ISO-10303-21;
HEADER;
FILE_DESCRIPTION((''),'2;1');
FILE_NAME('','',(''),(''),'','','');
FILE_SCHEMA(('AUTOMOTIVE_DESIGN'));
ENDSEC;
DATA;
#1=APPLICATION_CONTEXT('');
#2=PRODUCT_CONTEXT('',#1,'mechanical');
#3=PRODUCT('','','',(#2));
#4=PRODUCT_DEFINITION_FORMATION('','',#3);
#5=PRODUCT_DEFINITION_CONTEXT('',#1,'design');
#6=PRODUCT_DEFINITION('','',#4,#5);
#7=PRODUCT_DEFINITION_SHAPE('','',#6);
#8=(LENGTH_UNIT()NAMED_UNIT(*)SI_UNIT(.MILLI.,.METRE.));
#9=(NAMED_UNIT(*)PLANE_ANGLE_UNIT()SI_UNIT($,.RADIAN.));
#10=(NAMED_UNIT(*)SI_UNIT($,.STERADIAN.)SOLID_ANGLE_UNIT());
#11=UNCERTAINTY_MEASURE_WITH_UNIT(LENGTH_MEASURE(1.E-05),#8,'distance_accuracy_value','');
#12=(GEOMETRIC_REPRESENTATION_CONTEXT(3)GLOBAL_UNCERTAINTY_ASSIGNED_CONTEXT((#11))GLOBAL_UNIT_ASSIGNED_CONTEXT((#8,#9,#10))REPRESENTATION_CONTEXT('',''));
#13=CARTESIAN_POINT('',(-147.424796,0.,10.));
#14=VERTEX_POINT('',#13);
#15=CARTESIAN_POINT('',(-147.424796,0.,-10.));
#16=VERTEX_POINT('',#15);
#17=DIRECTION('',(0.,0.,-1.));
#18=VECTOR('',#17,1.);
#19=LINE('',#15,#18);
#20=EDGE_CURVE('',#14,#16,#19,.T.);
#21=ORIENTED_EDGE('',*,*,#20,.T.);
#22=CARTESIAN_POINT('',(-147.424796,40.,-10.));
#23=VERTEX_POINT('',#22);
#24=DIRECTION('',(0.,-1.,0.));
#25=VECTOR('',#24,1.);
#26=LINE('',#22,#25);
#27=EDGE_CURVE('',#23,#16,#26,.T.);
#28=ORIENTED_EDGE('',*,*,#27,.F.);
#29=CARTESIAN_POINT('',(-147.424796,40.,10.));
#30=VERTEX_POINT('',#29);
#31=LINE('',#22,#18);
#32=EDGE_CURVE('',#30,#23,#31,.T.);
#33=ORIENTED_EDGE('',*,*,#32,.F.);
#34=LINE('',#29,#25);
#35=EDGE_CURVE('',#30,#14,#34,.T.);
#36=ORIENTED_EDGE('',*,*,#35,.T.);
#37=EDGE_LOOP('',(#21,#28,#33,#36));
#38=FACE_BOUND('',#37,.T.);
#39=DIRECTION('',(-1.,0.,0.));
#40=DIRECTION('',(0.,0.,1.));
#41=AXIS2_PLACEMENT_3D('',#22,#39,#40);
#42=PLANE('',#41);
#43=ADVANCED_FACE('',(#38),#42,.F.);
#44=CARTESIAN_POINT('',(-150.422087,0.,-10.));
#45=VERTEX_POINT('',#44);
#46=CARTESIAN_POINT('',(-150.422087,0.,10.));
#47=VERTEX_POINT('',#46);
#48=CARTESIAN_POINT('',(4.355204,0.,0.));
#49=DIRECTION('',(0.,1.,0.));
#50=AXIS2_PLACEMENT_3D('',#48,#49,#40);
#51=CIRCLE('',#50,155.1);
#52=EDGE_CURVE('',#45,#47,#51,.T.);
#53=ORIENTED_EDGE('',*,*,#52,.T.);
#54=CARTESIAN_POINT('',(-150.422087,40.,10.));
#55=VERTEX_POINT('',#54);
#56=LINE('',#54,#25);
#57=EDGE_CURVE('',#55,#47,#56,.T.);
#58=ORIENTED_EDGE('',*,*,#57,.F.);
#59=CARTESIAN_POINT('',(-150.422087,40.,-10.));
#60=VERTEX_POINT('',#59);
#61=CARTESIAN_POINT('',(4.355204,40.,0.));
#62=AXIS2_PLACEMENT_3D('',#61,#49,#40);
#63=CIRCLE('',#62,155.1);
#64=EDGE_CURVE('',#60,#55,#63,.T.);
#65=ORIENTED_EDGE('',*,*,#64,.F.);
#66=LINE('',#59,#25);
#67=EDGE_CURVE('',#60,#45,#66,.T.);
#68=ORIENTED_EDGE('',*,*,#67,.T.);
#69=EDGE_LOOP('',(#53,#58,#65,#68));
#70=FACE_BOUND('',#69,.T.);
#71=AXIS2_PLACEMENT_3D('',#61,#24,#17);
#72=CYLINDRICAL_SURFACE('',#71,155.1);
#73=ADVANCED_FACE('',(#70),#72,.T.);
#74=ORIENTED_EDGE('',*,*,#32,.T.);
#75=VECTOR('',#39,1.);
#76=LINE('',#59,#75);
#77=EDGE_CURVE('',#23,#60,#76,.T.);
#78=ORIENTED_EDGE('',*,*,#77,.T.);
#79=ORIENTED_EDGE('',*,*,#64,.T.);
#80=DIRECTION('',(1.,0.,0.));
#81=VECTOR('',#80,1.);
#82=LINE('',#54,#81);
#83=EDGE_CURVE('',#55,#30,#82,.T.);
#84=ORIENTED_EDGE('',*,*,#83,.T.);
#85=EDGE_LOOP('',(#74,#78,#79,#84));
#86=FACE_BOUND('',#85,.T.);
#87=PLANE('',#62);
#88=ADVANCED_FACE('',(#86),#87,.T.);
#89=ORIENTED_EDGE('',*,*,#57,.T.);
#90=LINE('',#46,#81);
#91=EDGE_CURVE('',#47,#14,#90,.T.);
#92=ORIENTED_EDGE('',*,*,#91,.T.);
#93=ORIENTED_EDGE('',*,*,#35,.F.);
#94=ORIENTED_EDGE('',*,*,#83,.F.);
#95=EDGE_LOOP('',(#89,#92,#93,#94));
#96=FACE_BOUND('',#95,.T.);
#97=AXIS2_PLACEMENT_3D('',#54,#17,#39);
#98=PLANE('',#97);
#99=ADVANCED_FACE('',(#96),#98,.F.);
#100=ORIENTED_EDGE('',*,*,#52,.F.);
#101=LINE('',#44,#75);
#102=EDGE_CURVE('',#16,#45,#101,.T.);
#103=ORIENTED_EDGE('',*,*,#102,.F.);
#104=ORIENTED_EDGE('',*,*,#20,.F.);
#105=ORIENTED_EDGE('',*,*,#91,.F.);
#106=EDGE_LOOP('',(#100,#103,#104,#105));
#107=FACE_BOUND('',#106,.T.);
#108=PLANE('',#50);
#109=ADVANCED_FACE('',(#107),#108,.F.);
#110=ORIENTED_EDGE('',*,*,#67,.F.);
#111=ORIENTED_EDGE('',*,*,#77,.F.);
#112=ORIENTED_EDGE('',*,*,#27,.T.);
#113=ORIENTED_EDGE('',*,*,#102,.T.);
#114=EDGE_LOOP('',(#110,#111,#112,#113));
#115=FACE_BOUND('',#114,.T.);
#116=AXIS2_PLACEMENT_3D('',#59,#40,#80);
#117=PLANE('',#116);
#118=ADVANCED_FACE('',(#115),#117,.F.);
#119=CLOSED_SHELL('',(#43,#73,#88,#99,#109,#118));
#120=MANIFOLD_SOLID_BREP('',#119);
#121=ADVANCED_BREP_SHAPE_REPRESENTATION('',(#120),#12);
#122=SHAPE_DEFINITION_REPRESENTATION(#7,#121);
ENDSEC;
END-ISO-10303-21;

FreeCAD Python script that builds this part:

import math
import FreeCAD as App
import Part
import Sketcher

doc = App.newDocument("Part")
body = doc.addObject("PartDesign::Body", "Body")

# Sketch on XZ plane
sketch1 = doc.addObject("Sketcher::SketchObject", "Sketch")
body.addObject(sketch1)
sketch1.AttachmentSupport = (doc.XZ_Plane, [""])
sketch1.MapMode = "FlatFace"
sketch1.addGeometry([
    Part.LineSegment(App.Vector(-147.4, -10, 0), App.Vector(-150.4, -10, 0)),
    Part.ArcOfCircle(Part.Circle(App.Vector(4.4, 0, 0), App.Vector(0, 0, 1), 155.1), math.radians(176.3), math.radians(183.7)),
    Part.LineSegment(App.Vector(-150.4, 10, 0), App.Vector(-147.4, 10, 0)),
    Part.LineSegment(App.Vector(-147.4, 10, 0), App.Vector(-147.4, -10, 0)),
], False)
sketch1.addConstraint([
    Sketcher.Constraint("Coincident", 0, 2, 1, 2),
    Sketcher.Constraint("Coincident", 1, 1, 2, 1),
    Sketcher.Constraint("Coincident", 2, 2, 3, 1),
    Sketcher.Constraint("Coincident", 3, 2, 0, 1),
    Sketcher.Constraint("Horizontal", 0),
    Sketcher.Constraint("Horizontal", 2),
    Sketcher.Constraint("Vertical", 3),
    Sketcher.Constraint("Symmetric", 0, 2, 1, 1, -1),
    Sketcher.Constraint("Radius", 1, 155.1),
    Sketcher.Constraint("DistanceY", 3, 2, 3, 1, 20.0),
    Sketcher.Constraint("DistanceX", 2, 2, 1, 3, 151.78),
    Sketcher.Constraint("DistanceX", -1, 1, 1, 3, 4.355204),
])
pad1 = doc.addObject("PartDesign::Pad", "Pad")
body.addObject(pad1)
pad1.Profile = sketch1
pad1.Length = 40
pad1.Reversed = True

doc.recompute()
